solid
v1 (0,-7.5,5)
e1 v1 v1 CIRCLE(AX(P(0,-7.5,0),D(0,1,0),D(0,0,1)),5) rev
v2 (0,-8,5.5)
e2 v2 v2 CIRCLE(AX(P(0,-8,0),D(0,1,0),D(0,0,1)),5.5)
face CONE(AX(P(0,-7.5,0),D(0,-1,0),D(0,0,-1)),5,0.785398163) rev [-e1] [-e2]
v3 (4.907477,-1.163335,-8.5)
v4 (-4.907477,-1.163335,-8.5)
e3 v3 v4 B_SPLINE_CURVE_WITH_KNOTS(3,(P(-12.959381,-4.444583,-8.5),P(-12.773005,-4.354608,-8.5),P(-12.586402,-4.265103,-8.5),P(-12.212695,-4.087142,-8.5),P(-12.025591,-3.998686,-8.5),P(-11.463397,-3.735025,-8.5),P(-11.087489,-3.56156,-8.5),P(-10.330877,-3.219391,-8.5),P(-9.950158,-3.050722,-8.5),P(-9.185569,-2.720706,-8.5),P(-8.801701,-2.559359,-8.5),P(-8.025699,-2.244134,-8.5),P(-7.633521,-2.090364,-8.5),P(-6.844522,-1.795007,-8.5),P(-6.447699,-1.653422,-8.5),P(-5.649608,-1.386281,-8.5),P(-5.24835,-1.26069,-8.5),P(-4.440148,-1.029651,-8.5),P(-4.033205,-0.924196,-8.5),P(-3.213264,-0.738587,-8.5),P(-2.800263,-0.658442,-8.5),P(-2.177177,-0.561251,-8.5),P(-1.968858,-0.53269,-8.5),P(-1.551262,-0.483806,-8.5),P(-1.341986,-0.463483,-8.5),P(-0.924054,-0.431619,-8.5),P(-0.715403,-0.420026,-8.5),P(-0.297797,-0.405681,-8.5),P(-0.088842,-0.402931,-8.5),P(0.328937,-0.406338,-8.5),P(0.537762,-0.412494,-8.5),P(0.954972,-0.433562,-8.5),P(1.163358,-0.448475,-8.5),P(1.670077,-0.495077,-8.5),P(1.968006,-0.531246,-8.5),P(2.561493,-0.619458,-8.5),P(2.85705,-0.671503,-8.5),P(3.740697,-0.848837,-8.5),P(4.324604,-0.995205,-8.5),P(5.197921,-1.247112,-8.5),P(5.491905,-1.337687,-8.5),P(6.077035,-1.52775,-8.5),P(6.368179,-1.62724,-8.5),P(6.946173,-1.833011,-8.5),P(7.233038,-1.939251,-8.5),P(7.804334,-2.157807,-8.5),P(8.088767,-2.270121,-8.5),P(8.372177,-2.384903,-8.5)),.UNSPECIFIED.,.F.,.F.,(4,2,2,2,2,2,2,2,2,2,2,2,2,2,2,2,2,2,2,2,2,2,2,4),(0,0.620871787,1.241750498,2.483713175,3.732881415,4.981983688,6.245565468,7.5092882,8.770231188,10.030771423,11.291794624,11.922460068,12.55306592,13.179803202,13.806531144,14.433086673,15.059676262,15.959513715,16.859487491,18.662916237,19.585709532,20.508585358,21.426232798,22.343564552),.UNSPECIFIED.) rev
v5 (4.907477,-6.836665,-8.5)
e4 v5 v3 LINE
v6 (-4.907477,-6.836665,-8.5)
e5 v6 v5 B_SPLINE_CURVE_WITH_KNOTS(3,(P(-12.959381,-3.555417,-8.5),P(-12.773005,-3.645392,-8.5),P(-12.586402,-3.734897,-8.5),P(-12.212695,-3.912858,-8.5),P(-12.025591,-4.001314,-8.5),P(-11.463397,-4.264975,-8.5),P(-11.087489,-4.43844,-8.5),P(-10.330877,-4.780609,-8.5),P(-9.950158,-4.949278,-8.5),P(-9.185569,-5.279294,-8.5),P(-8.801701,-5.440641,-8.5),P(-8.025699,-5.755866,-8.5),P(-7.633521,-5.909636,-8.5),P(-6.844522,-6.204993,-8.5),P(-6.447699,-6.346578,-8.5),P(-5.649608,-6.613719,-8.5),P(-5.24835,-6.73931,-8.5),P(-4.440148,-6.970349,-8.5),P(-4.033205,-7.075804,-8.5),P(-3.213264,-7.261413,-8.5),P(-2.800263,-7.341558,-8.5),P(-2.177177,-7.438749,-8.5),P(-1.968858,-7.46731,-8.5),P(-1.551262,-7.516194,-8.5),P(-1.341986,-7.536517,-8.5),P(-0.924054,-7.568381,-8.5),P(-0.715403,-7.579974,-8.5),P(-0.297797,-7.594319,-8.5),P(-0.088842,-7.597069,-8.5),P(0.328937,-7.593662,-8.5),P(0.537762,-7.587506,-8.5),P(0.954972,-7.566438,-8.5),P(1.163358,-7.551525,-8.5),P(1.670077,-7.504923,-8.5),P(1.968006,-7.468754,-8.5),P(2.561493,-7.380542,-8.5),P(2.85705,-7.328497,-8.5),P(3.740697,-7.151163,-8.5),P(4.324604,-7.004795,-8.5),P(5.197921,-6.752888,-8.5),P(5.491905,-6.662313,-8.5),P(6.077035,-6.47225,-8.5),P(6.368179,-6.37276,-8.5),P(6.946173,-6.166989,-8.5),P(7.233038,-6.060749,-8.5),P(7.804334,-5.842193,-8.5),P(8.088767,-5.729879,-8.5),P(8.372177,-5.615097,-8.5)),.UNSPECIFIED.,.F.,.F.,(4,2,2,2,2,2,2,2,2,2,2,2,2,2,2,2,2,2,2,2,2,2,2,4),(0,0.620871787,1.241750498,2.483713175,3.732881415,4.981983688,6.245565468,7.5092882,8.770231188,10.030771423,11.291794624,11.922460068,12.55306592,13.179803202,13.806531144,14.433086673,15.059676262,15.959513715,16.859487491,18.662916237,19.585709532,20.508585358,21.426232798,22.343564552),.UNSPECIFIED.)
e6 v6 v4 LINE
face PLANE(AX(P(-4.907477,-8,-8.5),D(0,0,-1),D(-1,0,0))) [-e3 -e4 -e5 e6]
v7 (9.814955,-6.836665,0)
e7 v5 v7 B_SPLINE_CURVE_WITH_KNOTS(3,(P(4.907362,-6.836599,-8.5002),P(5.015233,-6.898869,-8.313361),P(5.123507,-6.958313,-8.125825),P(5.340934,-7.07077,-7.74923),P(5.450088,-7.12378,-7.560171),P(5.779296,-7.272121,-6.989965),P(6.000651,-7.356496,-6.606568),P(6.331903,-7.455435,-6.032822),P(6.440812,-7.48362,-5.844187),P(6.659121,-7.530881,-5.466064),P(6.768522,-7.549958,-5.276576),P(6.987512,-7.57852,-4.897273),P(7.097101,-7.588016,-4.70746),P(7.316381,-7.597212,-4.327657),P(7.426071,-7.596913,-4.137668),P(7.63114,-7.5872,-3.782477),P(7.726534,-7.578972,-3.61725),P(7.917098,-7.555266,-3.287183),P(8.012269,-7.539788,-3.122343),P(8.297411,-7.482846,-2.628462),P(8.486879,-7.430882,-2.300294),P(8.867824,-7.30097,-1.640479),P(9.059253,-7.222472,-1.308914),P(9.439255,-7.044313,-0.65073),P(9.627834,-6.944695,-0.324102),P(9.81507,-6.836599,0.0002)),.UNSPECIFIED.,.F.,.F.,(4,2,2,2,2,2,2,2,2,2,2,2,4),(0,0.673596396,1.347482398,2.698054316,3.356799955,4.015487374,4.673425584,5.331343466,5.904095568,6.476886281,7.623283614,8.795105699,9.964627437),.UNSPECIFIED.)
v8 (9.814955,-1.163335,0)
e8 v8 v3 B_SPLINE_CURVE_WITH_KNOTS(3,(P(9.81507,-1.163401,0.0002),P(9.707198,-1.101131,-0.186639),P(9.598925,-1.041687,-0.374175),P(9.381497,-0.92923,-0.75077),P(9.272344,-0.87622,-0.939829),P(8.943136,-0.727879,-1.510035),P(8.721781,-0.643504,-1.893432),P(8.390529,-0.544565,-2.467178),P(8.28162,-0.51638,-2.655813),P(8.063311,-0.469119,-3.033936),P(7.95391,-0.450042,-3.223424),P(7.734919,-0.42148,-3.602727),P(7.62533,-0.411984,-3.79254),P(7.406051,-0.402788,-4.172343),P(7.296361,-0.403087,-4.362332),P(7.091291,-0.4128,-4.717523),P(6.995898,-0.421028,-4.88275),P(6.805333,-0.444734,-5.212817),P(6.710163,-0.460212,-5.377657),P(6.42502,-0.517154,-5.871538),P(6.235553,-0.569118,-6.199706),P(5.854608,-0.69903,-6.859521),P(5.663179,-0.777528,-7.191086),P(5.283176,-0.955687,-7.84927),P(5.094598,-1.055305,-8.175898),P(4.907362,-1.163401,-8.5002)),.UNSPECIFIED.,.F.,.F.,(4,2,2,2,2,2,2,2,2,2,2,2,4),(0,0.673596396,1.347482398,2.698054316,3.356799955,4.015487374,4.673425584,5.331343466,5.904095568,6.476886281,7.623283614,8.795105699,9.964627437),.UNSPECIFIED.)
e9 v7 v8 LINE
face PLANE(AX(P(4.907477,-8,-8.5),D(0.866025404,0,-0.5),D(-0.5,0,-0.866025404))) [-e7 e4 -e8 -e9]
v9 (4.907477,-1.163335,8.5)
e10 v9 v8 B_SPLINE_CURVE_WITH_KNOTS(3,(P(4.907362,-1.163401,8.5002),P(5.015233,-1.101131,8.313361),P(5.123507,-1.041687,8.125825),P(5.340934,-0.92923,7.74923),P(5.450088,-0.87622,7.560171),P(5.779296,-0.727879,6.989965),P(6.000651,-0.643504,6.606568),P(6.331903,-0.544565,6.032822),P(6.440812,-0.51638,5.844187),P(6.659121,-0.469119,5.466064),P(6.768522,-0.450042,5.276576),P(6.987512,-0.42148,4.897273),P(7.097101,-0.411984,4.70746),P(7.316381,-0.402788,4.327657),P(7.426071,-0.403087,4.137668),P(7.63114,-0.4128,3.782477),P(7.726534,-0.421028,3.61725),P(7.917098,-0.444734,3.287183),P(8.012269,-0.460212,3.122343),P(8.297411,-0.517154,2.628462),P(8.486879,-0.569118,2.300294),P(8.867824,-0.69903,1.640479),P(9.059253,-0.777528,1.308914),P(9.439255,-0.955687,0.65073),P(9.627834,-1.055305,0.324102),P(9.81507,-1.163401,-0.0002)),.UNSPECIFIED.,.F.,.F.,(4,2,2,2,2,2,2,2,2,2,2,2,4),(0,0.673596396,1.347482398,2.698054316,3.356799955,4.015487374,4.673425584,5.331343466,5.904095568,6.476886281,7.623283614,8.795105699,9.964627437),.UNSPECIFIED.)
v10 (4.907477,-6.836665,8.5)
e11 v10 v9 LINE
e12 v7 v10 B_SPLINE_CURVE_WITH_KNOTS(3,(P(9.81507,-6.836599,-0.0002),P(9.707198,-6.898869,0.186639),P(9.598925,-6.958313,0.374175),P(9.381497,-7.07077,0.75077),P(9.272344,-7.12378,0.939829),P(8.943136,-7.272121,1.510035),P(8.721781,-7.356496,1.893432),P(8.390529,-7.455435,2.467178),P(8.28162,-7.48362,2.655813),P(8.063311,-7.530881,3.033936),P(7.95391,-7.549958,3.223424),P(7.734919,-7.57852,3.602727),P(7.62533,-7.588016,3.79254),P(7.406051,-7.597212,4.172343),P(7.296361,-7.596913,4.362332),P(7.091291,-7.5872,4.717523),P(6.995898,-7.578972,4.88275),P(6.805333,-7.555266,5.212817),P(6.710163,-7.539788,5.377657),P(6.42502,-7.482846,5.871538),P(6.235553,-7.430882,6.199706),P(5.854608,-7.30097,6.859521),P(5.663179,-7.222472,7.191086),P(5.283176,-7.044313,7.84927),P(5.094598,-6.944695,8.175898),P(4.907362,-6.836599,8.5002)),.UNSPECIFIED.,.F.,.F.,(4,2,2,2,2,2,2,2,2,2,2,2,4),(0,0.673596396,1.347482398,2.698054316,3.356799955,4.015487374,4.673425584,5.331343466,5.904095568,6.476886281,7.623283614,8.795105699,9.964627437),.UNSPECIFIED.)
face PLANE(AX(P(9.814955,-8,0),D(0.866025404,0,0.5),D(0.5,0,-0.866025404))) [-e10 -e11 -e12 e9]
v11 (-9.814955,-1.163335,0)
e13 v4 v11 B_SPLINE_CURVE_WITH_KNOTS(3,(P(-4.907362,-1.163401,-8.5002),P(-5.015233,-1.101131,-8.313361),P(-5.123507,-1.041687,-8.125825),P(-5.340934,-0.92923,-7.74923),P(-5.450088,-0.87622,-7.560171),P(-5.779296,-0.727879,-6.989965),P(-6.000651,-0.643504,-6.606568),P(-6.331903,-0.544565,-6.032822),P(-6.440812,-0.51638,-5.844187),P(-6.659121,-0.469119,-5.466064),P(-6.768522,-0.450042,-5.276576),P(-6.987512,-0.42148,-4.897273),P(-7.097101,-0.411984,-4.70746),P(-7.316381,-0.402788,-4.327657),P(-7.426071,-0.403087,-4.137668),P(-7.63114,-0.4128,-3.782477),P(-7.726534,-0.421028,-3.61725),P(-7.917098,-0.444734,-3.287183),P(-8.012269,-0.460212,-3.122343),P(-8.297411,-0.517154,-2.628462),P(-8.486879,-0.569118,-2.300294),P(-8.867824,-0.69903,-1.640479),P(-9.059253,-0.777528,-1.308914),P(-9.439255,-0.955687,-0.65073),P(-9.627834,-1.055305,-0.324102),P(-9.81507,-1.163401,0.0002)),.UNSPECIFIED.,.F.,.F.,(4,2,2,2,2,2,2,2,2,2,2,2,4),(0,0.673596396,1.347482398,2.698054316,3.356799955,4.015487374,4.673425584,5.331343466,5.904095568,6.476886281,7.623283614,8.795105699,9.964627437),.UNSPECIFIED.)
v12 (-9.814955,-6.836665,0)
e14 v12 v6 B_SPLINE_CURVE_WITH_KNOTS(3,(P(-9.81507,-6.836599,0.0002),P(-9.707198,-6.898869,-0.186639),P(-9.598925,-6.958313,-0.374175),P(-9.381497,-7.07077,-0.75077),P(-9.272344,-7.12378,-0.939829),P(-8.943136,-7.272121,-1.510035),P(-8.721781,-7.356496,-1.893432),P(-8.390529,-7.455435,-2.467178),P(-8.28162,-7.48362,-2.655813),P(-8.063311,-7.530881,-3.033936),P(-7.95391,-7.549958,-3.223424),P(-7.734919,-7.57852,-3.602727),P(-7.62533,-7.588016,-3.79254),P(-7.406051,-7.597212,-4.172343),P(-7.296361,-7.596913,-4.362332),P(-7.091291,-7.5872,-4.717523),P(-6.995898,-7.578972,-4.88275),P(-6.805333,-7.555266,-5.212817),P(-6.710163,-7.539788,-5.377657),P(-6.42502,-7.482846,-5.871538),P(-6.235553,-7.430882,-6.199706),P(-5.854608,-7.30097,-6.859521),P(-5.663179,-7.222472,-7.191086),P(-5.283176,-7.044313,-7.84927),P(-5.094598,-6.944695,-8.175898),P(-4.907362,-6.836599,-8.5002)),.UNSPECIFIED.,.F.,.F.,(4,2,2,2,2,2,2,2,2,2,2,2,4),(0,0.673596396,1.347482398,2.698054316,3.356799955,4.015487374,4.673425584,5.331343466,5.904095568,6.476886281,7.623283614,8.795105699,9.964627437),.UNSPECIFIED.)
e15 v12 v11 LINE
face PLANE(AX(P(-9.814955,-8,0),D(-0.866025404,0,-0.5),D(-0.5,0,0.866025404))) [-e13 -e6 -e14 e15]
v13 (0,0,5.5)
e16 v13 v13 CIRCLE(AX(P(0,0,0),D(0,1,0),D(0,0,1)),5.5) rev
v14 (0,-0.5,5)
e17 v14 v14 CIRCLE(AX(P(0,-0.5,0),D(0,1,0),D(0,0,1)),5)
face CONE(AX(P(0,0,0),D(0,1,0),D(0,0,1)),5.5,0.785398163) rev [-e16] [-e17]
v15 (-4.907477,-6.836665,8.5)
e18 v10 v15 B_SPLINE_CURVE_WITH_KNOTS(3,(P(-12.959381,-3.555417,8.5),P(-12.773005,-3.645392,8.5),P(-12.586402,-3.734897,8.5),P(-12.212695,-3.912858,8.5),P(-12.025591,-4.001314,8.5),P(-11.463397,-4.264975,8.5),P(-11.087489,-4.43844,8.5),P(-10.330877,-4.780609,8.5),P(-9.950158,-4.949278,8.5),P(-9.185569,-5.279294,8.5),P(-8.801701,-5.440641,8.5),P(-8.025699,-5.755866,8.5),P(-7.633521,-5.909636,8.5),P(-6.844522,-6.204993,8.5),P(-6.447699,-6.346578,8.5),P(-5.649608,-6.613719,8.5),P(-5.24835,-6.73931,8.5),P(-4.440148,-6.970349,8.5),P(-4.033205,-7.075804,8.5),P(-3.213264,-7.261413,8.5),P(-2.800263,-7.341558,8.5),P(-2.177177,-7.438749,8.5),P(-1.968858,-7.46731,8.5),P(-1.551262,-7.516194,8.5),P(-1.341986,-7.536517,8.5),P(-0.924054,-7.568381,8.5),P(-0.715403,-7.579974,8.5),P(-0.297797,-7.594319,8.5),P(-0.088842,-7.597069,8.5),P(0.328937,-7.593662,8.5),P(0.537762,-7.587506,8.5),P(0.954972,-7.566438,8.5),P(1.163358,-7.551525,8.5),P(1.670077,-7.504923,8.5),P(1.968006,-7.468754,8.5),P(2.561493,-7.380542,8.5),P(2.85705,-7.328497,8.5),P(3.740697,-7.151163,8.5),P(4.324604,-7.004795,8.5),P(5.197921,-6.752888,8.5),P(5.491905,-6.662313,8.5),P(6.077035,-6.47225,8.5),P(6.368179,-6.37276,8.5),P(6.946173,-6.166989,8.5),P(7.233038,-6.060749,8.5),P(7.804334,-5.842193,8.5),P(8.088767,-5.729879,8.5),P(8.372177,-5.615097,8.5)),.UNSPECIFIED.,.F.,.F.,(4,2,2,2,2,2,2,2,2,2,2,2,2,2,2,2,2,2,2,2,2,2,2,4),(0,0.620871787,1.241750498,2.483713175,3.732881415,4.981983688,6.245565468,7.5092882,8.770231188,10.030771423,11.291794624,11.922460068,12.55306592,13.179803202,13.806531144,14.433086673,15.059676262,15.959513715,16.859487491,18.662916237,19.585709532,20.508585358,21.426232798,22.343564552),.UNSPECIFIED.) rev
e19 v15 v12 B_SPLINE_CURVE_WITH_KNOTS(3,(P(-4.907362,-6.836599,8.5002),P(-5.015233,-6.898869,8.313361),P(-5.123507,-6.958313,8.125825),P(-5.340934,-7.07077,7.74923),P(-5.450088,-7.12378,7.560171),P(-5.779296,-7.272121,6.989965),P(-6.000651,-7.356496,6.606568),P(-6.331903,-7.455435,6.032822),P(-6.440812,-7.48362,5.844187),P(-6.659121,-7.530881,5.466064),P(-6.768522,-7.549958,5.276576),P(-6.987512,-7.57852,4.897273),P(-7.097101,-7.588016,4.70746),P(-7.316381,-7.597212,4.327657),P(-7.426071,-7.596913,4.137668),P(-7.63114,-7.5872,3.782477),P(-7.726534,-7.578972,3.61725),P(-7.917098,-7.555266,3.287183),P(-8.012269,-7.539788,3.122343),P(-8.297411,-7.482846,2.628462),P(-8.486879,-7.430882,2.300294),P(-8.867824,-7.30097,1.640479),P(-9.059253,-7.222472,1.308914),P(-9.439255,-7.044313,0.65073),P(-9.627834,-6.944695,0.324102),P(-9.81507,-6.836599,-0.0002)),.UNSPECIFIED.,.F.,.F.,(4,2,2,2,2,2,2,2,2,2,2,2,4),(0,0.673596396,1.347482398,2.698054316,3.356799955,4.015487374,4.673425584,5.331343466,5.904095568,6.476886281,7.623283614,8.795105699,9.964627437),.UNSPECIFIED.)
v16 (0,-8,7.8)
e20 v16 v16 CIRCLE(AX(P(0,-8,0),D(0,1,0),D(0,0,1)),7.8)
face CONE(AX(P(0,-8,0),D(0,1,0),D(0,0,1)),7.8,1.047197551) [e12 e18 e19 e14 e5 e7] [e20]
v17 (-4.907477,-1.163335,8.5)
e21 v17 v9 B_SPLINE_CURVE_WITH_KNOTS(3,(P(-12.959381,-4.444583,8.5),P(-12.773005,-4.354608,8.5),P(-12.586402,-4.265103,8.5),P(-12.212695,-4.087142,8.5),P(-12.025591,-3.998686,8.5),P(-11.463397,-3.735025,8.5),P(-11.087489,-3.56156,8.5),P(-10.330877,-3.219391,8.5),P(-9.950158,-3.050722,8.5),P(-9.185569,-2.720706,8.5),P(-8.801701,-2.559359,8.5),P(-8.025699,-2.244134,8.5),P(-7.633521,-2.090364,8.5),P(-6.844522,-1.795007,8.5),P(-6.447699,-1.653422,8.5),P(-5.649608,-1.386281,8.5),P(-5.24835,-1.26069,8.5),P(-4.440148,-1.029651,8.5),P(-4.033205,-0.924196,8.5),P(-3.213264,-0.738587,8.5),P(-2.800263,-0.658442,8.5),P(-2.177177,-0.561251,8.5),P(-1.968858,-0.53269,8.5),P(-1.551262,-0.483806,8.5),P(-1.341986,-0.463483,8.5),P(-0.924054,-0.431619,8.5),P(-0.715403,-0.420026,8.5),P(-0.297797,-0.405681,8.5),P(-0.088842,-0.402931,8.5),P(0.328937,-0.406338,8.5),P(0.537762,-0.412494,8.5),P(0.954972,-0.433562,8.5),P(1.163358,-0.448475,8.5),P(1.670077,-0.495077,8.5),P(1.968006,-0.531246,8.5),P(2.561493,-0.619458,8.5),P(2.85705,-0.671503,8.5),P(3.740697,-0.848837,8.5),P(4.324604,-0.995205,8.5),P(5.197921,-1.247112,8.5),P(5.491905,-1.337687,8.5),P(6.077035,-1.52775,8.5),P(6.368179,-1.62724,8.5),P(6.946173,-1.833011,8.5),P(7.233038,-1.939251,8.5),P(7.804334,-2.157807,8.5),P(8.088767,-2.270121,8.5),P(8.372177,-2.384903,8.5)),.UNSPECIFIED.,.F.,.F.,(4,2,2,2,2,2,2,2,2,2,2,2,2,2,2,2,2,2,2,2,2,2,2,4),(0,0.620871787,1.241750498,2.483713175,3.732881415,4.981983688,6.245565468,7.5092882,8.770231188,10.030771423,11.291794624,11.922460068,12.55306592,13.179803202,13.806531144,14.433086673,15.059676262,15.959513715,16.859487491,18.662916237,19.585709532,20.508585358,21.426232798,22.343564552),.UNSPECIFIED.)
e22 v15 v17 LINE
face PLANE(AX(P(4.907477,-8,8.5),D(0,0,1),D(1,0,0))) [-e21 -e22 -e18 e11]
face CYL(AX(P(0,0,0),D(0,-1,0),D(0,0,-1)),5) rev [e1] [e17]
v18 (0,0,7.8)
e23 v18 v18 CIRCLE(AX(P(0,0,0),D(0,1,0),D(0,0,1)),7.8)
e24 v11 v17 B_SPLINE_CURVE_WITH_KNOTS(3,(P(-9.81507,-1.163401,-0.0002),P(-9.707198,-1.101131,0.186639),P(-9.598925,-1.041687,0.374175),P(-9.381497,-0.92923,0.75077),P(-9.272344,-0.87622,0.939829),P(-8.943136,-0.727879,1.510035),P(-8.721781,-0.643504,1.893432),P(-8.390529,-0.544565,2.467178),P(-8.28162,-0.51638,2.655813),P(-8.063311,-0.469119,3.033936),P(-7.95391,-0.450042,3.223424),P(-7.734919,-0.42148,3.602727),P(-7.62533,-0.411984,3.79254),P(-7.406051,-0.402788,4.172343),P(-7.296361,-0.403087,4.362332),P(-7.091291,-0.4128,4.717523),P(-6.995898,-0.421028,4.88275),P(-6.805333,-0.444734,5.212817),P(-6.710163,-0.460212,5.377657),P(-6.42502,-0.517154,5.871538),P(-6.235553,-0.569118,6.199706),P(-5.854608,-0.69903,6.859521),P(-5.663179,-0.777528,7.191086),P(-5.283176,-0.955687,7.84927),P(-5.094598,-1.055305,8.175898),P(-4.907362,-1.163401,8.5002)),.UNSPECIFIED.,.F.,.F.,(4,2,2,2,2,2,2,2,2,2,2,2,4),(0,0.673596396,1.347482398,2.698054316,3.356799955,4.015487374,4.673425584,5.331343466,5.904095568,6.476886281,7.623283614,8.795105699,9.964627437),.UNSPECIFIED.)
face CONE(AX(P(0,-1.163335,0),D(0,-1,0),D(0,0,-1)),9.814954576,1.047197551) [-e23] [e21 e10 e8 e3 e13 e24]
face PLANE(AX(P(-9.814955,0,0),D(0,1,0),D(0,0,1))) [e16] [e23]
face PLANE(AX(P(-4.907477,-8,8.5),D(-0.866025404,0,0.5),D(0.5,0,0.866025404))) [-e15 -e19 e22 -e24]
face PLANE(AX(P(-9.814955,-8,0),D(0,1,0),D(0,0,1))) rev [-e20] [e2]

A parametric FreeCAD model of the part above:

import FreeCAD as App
import Part
import Sketcher
from FreeCAD import Vector
Q = App.Units.Quantity


def edges_at(feature, points):
    """Names of the edges that pass closest to the given points."""
    edges = feature.Shape.Edges
    near = lambda p: min(range(len(edges)), key=lambda i: edges[i].distToShape(Part.Vertex(*p))[0])
    return sorted({f"Edge{near(p) + 1}" for p in points})

doc = App.newDocument("Part")
params = doc.addObject("Spreadsheet::Sheet", "Params")
for row, (alias, value) in enumerate([
    ("pad1_length", "8 mm"),
    ("sketch2_diameter", "10 mm"),
    ("groove_angle", "360 deg"),
    ("chamfer_size", "0.5 mm"),
], start=1):
    params.set(f"A{row}", alias)
    params.set(f"B{row}", "=" + value)
    params.setAlias(f"B{row}", alias)

body = doc.addObject("PartDesign::Body", "Body")

# Sketch on XZ plane
sketch1 = doc.addObject("Sketcher::SketchObject", "Sketch")
body.addObject(sketch1)
sketch1.AttachmentSupport = (doc.XZ_Plane, [""])
sketch1.MapMode = "FlatFace"
sketch1.addGeometry([
    Part.LineSegment(Vector(4.907477, -8.5, 0), Vector(-4.907477, -8.5, 0)),  # 0
    Part.LineSegment(Vector(-4.907477, -8.5, 0), Vector(-9.814955, 0, 0)),  # 1
    Part.LineSegment(Vector(-9.814955, 0, 0), Vector(-4.907477, 8.5, 0)),  # 2
    Part.LineSegment(Vector(-4.907477, 8.5, 0), Vector(4.907477, 8.5, 0)),  # 3
    Part.LineSegment(Vector(4.907477, 8.5, 0), Vector(9.814955, 0, 0)),  # 4
    Part.LineSegment(Vector(9.814955, 0, 0), Vector(4.907477, -8.5, 0)),  # 5
], False)
sketch1.addConstraint([
    Sketcher.Constraint("Coincident", 0, 2, 1, 1),
    Sketcher.Constraint("Coincident", 1, 2, 2, 1),
    Sketcher.Constraint("Coincident", 2, 2, 3, 1),
    Sketcher.Constraint("Coincident", 3, 2, 4, 1),
    Sketcher.Constraint("Coincident", 4, 2, 5, 1),
    Sketcher.Constraint("Coincident", 5, 2, 0, 1),
    Sketcher.Constraint("Horizontal", 0),
    Sketcher.Constraint("Horizontal", 3),
    Sketcher.Constraint("Symmetric", 0, 2, 3, 2, -1, 1),
    Sketcher.Constraint("Symmetric", 1, 2, 4, 2, -1, 1),
    Sketcher.Constraint("PointOnObject", 1, 2, -1),
    Sketcher.Constraint("Parallel", 2, 5),
    Sketcher.Constraint("Vertical", 0, 2, 2, 2),
    Sketcher.Constraint("Angle", 1, Q("120 deg")),
    Sketcher.Constraint("DistanceY", 0, 2, 2, 2, Q("17 mm")),
    Sketcher.Constraint("DistanceX", 0, 2, 0, 1, Q("9.814955 mm")),
])
pad1 = doc.addObject("PartDesign::Pad", "Pad")
body.addObject(pad1)
pad1.Profile = sketch1
pad1.setExpression("Length", "Params.pad1_length")

# Sketch on XZ plane
sketch2 = doc.addObject("Sketcher::SketchObject", "Sketch001")
body.addObject(sketch2)
sketch2.AttachmentSupport = (doc.XZ_Plane, [""])
sketch2.MapMode = "FlatFace"
sketch2.AttachmentOffset = App.Placement(Vector(0, 0, 8), App.Rotation())
sketch2.addGeometry(Part.Circle(Vector(0, 0, 0), Vector(0, 0, 1), 5), False)
sketch2.addConstraint([
    Sketcher.Constraint("Coincident", 0, 3, -1, 1),
    Sketcher.Constraint("Diameter", 0, Q("10 mm")),
])
sketch2.setExpression("Constraints[1]", "Params.sketch2_diameter")
pocket1 = doc.addObject("PartDesign::Pocket", "Pocket")
body.addObject(pocket1)
pocket1.Profile = sketch2
pocket1.Type = "ThroughAll"

# Sketch on XY plane
sketch3 = doc.addObject("Sketcher::SketchObject", "Sketch002")
body.addObject(sketch3)
sketch3.AttachmentSupport = (doc.XY_Plane, [""])
sketch3.MapMode = "FlatFace"
sketch3.addGeometry([
    Part.LineSegment(Vector(-9.814955, -1.163335, 0), Vector(-7.8, 0, 0)),  # 0
    Part.LineSegment(Vector(-7.8, 0, 0), Vector(-9.814955, 0, 0)),  # 1
    Part.LineSegment(Vector(-9.814955, 0, 0), Vector(-9.814955, -1.163335, 0)),  # 2
    Part.LineSegment(Vector(-7.8, -8, 0), Vector(-9.814955, -6.836665, 0)),  # 3
    Part.LineSegment(Vector(-9.814955, -6.836665, 0), Vector(-9.814955, -8, 0)),  # 4
    Part.LineSegment(Vector(-9.814955, -8, 0), Vector(-7.8, -8, 0)),  # 5
], False)
sketch3.addConstraint([
    Sketcher.Constraint("Coincident", 0, 2, 1, 1),
    Sketcher.Constraint("Coincident", 1, 2, 2, 1),
    Sketcher.Constraint("Coincident", 2, 2, 0, 1),
    Sketcher.Constraint("Coincident", 3, 2, 4, 1),
    Sketcher.Constraint("Coincident", 4, 2, 5, 1),
    Sketcher.Constraint("Coincident", 5, 2, 3, 1),
    Sketcher.Constraint("Horizontal", 1),
    Sketcher.Constraint("Vertical", 2),
    Sketcher.Constraint("Vertical", 4),
    Sketcher.Constraint("Horizontal", 5),
    Sketcher.Constraint("PointOnObject", 0, 2, -1),
    Sketcher.Constraint("Vertical", 2, 2, 3, 2),
    Sketcher.Constraint("Vertical", 0, 2, 5, 2),
    Sketcher.Constraint("Equal", 2, 4),
    Sketcher.Constraint("Angle", 0, Q("30 deg")),
    Sketcher.Constraint("DistanceY", 4, 2, -1, 1, Q("8 mm")),
    Sketcher.Constraint("DistanceX", 0, 2, -1, 1, Q("7.8 mm")),
    Sketcher.Constraint("Distance", 0, Q("2.326669 mm")),
])
groove = doc.addObject("PartDesign::Groove", "Groove")
body.addObject(groove)
groove.Profile = sketch3
groove.ReferenceAxis = (sketch3, ["V_Axis"])
groove.setExpression("Angle", "Params.groove_angle")
doc.recompute()

chamfer = doc.addObject("PartDesign::Chamfer", "Chamfer")
body.addObject(chamfer)
chamfer.Base = (groove, edges_at(groove, [(0, 0, 5), (0, -8, 5)]))
chamfer.setExpression("Size", "Params.chamfer_size")

doc.recompute()
